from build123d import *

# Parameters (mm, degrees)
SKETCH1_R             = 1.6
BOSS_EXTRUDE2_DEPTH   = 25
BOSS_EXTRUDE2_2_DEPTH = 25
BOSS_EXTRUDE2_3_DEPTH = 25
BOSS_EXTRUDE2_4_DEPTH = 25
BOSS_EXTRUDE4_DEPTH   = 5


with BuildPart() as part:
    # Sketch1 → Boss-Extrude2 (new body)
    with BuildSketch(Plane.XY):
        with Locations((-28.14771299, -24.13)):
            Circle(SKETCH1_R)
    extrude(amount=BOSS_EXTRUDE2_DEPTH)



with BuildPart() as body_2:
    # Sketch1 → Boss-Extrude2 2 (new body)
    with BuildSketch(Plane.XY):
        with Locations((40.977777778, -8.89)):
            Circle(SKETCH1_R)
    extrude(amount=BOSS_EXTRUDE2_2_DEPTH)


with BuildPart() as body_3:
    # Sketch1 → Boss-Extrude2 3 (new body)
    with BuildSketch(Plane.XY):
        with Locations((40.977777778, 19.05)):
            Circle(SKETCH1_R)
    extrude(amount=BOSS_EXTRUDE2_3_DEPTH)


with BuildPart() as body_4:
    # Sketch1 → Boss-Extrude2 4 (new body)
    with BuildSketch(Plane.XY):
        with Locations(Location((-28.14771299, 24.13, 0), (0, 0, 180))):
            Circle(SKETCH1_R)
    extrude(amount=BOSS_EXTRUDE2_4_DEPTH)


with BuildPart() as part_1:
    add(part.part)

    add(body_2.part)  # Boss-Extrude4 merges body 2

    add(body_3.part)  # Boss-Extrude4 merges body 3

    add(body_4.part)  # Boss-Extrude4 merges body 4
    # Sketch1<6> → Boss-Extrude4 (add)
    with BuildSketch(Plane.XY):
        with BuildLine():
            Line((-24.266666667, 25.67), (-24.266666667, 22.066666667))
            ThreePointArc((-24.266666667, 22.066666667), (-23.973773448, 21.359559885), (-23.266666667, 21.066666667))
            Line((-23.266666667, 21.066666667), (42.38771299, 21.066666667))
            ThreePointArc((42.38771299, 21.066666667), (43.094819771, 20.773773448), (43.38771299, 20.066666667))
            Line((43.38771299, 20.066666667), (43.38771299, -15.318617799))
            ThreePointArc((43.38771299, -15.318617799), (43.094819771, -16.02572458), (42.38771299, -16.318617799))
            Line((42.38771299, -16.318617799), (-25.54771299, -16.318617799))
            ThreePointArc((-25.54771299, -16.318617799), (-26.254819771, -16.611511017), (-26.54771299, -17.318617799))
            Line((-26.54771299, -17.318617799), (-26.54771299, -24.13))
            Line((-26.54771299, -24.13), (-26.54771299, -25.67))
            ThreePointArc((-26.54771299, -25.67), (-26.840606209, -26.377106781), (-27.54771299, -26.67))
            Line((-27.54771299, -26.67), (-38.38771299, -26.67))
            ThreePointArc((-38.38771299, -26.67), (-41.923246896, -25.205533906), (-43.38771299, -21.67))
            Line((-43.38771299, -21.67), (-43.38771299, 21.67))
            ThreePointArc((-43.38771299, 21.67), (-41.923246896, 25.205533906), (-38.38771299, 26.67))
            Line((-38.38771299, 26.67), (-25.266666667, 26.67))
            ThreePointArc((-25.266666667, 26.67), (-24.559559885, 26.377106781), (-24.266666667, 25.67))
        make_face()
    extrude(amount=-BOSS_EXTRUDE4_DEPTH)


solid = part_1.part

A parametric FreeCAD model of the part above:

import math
import FreeCAD as App
import Part
import Sketcher
from FreeCAD import Vector
Q = App.Units.Quantity

doc = App.newDocument("Part")
body = doc.addObject("PartDesign::Body", "Body")

# Sketch on XY plane
sketch1 = body.newObject("Sketcher::SketchObject", "Sketch")
sketch1.AttachmentSupport = (doc.getObject("XY_Plane"), [""])
sketch1.MapMode = "FlatFace"
sketch1.addGeometry(Part.Circle(Vector(-28.1, -24.1, 0), Vector(0, 0, 1), 1.6), False)
sketch1.addConstraint([
    Sketcher.Constraint("Diameter", 0, Q("3.2 mm")),
    Sketcher.Constraint("DistanceY", 0, 3, -1, 1, Q("24.13 mm")),
    Sketcher.Constraint("DistanceX", 0, 3, -1, 1, Q("28.147713 mm")),
])
pad1 = body.newObject("PartDesign::Pad", "Pad")
pad1.Profile = sketch1
pad1.Length = 25
body2 = doc.addObject("PartDesign::Body", "Body001")

# Sketch on XY plane
sketch2 = body2.newObject("Sketcher::SketchObject", "Sketch001")
sketch2.AttachmentSupport = (doc.getObject("XY_Plane001"), [""])
sketch2.MapMode = "FlatFace"
sketch2.addGeometry(Part.Circle(Vector(41, -8.9, 0), Vector(0, 0, 1), 1.6), False)
sketch2.addConstraint([
    Sketcher.Constraint("Diameter", 0, Q("3.2 mm")),
    Sketcher.Constraint("DistanceY", 0, 3, -1, 1, Q("8.89 mm")),
    Sketcher.Constraint("DistanceX", -1, 1, 0, 3, Q("40.977778 mm")),
])
pad2 = body2.newObject("PartDesign::Pad", "Pad001")
pad2.Profile = sketch2
pad2.Length = 25
body3 = doc.addObject("PartDesign::Body", "Body002")

# Sketch on XY plane
sketch3 = body3.newObject("Sketcher::SketchObject", "Sketch002")
sketch3.AttachmentSupport = (doc.getObject("XY_Plane002"), [""])
sketch3.MapMode = "FlatFace"
sketch3.addGeometry(Part.Circle(Vector(41, 19.1, 0), Vector(0, 0, 1), 1.6), False)
sketch3.addConstraint([
    Sketcher.Constraint("Diameter", 0, Q("3.2 mm")),
    Sketcher.Constraint("DistanceY", -1, 1, 0, 3, Q("19.05 mm")),
    Sketcher.Constraint("DistanceX", -1, 1, 0, 3, Q("40.977778 mm")),
])
pad3 = body3.newObject("PartDesign::Pad", "Pad002")
pad3.Profile = sketch3
pad3.Length = 25
body4 = doc.addObject("PartDesign::Body", "Body003")

# Sketch on XY plane
sketch4 = body4.newObject("Sketcher::SketchObject", "Sketch003")
sketch4.AttachmentSupport = (doc.getObject("XY_Plane003"), [""])
sketch4.MapMode = "FlatFace"
sketch4.addGeometry(Part.Circle(Vector(-28.1, 24.1, 0), Vector(0, 0, 1), 1.6), False)
sketch4.addConstraint([
    Sketcher.Constraint("Diameter", 0, Q("3.2 mm")),
    Sketcher.Constraint("DistanceY", -1, 1, 0, 3, Q("24.13 mm")),
    Sketcher.Constraint("DistanceX", 0, 3, -1, 1, Q("28.147713 mm")),
])
pad4 = body4.newObject("PartDesign::Pad", "Pad003")
pad4.Profile = sketch4
pad4.Length = 25
body.AllowCompound = True
doc.recompute()

boolean = body.newObject("PartDesign::Boolean", "Boolean")
boolean.Type = "Fuse"
boolean.addObjects([body2])
doc.recompute()

boolean2 = body.newObject("PartDesign::Boolean", "Boolean001")
boolean2.Type = "Fuse"
boolean2.addObjects([body3])
doc.recompute()

boolean3 = body.newObject("PartDesign::Boolean", "Boolean002")
boolean3.Type = "Fuse"
boolean3.addObjects([body4])

# Sketch on XY plane
sketch5 = body.newObject("Sketcher::SketchObject", "Sketch004")
sketch5.AttachmentSupport = (doc.getObject("XY_Plane"), [""])
sketch5.MapMode = "FlatFace"
sketch5.addGeometry([
    Part.LineSegment(Vector(-24.3, 22.1, 0), Vector(-24.3, 25.7, 0)),  # 0
    Part.ArcOfCircle(Part.Circle(Vector(-25.3, 25.7, 0), Vector(0, 0, 1), 1), math.radians(0), math.radians(90)),  # 1
    Part.LineSegment(Vector(-25.3, 26.7, 0), Vector(-38.4, 26.7, 0)),  # 2
    Part.ArcOfCircle(Part.Circle(Vector(-38.4, 21.7, 0), Vector(0, 0, 1), 5), math.radians(90), math.radians(180)),  # 3
    Part.LineSegment(Vector(-43.4, 21.7, 0), Vector(-43.4, -21.7, 0)),  # 4
    Part.ArcOfCircle(Part.Circle(Vector(-38.4, -21.7, 0), Vector(0, 0, 1), 5), math.radians(180), math.radians(270)),  # 5
    Part.LineSegment(Vector(-38.4, -26.7, 0), Vector(-27.5, -26.7, 0)),  # 6
    Part.ArcOfCircle(Part.Circle(Vector(-27.5, -25.7, 0), Vector(0, 0, 1), 1), math.radians(-90), math.radians(0)),  # 7
    Part.LineSegment(Vector(-26.5, -25.7, 0), Vector(-26.5, -17.3, 0)),  # 8
    Part.ArcOfCircle(Part.Circle(Vector(-25.5, -17.3, 0), Vector(0, 0, 1), 1), math.radians(90), math.radians(180)),  # 9
    Part.LineSegment(Vector(-25.5, -16.3, 0), Vector(42.4, -16.3, 0)),  # 10
    Part.ArcOfCircle(Part.Circle(Vector(42.4, -15.3, 0), Vector(0, 0, 1), 1), math.radians(-90), math.radians(0)),  # 11
    Part.LineSegment(Vector(43.4, -15.3, 0), Vector(43.4, 20.1, 0)),  # 12
    Part.ArcOfCircle(Part.Circle(Vector(42.4, 20.1, 0), Vector(0, 0, 1), 1), math.radians(0), math.radians(90)),  # 13
    Part.LineSegment(Vector(42.4, 21.1, 0), Vector(-23.3, 21.1, 0)),  # 14
    Part.ArcOfCircle(Part.Circle(Vector(-23.3, 22.1, 0), Vector(0, 0, 1), 1), math.radians(180), math.radians(270)),  # 15
], False)
sketch5.addConstraint([
    Sketcher.Constraint("Tangent", 0, 2, 1, 1),
    Sketcher.Constraint("Tangent", 1, 2, 2, 1),
    Sketcher.Constraint("Tangent", 2, 2, 3, 1),
    Sketcher.Constraint("Tangent", 3, 2, 4, 1),
    Sketcher.Constraint("Tangent", 4, 2, 5, 1),
    Sketcher.Constraint("Tangent", 5, 2, 6, 1),
    Sketcher.Constraint("Tangent", 6, 2, 7, 1),
    Sketcher.Constraint("Tangent", 7, 2, 8, 1),
    Sketcher.Constraint("Tangent", 8, 2, 9, 2),
    Sketcher.Constraint("Tangent", 9, 1, 10, 1),
    Sketcher.Constraint("Tangent", 10, 2, 11, 1),
    Sketcher.Constraint("Tangent", 11, 2, 12, 1),
    Sketcher.Constraint("Tangent", 12, 2, 13, 1),
    Sketcher.Constraint("Tangent", 13, 2, 14, 1),
    Sketcher.Constraint("Tangent", 14, 2, 15, 2),
    Sketcher.Constraint("Tangent", 15, 1, 0, 1),
    Sketcher.Constraint("Vertical", 0),
    Sketcher.Constraint("Horizontal", 2),
    Sketcher.Constraint("Vertical", 4),
    Sketcher.Constraint("Horizontal", 6),
    Sketcher.Constraint("Vertical", 8),
    Sketcher.Constraint("Horizontal", 10),
    Sketcher.Constraint("Vertical", 12),
    Sketcher.Constraint("Horizontal", 14),
    Sketcher.Constraint("Equal", 3, 5),
    Sketcher.Constraint("Equal", 1, 7),
    Sketcher.Constraint("Equal", 7, 9),
    Sketcher.Constraint("Equal", 9, 11),
    Sketcher.Constraint("Equal", 11, 13),
    Sketcher.Constraint("Equal", 13, 15),
    Sketcher.Constraint("Radius", 1, Q("1 mm")),
    Sketcher.Constraint("Radius", 3, Q("5 mm")),
    Sketcher.Constraint("DistanceX", 6, 1, 6, 2, Q("10.84 mm")),
    Sketcher.Constraint("DistanceY", 4, 2, 4, 1, Q("43.34 mm")),
    Sketcher.Constraint("DistanceY", -1, 1, 1, 3, Q("25.67 mm")),
    Sketcher.Constraint("DistanceX", 14, 2, 14, 1, Q("65.65438 mm")),
    Sketcher.Constraint("DistanceX", 2, 2, 2, 1, Q("13.121046 mm")),
    Sketcher.Constraint("DistanceY", 0, 1, 0, 2, Q("3.603333 mm")),
    Sketcher.Constraint("DistanceY", 8, 1, 8, 2, Q("8.351382 mm")),
    Sketcher.Constraint("DistanceX", 1, 3, -1, 1, Q("25.266667 mm")),
])
pad5 = body.newObject("PartDesign::Pad", "Pad004")
pad5.Profile = sketch5
pad5.Length = 5
pad5.Reversed = True

doc.recompute()
